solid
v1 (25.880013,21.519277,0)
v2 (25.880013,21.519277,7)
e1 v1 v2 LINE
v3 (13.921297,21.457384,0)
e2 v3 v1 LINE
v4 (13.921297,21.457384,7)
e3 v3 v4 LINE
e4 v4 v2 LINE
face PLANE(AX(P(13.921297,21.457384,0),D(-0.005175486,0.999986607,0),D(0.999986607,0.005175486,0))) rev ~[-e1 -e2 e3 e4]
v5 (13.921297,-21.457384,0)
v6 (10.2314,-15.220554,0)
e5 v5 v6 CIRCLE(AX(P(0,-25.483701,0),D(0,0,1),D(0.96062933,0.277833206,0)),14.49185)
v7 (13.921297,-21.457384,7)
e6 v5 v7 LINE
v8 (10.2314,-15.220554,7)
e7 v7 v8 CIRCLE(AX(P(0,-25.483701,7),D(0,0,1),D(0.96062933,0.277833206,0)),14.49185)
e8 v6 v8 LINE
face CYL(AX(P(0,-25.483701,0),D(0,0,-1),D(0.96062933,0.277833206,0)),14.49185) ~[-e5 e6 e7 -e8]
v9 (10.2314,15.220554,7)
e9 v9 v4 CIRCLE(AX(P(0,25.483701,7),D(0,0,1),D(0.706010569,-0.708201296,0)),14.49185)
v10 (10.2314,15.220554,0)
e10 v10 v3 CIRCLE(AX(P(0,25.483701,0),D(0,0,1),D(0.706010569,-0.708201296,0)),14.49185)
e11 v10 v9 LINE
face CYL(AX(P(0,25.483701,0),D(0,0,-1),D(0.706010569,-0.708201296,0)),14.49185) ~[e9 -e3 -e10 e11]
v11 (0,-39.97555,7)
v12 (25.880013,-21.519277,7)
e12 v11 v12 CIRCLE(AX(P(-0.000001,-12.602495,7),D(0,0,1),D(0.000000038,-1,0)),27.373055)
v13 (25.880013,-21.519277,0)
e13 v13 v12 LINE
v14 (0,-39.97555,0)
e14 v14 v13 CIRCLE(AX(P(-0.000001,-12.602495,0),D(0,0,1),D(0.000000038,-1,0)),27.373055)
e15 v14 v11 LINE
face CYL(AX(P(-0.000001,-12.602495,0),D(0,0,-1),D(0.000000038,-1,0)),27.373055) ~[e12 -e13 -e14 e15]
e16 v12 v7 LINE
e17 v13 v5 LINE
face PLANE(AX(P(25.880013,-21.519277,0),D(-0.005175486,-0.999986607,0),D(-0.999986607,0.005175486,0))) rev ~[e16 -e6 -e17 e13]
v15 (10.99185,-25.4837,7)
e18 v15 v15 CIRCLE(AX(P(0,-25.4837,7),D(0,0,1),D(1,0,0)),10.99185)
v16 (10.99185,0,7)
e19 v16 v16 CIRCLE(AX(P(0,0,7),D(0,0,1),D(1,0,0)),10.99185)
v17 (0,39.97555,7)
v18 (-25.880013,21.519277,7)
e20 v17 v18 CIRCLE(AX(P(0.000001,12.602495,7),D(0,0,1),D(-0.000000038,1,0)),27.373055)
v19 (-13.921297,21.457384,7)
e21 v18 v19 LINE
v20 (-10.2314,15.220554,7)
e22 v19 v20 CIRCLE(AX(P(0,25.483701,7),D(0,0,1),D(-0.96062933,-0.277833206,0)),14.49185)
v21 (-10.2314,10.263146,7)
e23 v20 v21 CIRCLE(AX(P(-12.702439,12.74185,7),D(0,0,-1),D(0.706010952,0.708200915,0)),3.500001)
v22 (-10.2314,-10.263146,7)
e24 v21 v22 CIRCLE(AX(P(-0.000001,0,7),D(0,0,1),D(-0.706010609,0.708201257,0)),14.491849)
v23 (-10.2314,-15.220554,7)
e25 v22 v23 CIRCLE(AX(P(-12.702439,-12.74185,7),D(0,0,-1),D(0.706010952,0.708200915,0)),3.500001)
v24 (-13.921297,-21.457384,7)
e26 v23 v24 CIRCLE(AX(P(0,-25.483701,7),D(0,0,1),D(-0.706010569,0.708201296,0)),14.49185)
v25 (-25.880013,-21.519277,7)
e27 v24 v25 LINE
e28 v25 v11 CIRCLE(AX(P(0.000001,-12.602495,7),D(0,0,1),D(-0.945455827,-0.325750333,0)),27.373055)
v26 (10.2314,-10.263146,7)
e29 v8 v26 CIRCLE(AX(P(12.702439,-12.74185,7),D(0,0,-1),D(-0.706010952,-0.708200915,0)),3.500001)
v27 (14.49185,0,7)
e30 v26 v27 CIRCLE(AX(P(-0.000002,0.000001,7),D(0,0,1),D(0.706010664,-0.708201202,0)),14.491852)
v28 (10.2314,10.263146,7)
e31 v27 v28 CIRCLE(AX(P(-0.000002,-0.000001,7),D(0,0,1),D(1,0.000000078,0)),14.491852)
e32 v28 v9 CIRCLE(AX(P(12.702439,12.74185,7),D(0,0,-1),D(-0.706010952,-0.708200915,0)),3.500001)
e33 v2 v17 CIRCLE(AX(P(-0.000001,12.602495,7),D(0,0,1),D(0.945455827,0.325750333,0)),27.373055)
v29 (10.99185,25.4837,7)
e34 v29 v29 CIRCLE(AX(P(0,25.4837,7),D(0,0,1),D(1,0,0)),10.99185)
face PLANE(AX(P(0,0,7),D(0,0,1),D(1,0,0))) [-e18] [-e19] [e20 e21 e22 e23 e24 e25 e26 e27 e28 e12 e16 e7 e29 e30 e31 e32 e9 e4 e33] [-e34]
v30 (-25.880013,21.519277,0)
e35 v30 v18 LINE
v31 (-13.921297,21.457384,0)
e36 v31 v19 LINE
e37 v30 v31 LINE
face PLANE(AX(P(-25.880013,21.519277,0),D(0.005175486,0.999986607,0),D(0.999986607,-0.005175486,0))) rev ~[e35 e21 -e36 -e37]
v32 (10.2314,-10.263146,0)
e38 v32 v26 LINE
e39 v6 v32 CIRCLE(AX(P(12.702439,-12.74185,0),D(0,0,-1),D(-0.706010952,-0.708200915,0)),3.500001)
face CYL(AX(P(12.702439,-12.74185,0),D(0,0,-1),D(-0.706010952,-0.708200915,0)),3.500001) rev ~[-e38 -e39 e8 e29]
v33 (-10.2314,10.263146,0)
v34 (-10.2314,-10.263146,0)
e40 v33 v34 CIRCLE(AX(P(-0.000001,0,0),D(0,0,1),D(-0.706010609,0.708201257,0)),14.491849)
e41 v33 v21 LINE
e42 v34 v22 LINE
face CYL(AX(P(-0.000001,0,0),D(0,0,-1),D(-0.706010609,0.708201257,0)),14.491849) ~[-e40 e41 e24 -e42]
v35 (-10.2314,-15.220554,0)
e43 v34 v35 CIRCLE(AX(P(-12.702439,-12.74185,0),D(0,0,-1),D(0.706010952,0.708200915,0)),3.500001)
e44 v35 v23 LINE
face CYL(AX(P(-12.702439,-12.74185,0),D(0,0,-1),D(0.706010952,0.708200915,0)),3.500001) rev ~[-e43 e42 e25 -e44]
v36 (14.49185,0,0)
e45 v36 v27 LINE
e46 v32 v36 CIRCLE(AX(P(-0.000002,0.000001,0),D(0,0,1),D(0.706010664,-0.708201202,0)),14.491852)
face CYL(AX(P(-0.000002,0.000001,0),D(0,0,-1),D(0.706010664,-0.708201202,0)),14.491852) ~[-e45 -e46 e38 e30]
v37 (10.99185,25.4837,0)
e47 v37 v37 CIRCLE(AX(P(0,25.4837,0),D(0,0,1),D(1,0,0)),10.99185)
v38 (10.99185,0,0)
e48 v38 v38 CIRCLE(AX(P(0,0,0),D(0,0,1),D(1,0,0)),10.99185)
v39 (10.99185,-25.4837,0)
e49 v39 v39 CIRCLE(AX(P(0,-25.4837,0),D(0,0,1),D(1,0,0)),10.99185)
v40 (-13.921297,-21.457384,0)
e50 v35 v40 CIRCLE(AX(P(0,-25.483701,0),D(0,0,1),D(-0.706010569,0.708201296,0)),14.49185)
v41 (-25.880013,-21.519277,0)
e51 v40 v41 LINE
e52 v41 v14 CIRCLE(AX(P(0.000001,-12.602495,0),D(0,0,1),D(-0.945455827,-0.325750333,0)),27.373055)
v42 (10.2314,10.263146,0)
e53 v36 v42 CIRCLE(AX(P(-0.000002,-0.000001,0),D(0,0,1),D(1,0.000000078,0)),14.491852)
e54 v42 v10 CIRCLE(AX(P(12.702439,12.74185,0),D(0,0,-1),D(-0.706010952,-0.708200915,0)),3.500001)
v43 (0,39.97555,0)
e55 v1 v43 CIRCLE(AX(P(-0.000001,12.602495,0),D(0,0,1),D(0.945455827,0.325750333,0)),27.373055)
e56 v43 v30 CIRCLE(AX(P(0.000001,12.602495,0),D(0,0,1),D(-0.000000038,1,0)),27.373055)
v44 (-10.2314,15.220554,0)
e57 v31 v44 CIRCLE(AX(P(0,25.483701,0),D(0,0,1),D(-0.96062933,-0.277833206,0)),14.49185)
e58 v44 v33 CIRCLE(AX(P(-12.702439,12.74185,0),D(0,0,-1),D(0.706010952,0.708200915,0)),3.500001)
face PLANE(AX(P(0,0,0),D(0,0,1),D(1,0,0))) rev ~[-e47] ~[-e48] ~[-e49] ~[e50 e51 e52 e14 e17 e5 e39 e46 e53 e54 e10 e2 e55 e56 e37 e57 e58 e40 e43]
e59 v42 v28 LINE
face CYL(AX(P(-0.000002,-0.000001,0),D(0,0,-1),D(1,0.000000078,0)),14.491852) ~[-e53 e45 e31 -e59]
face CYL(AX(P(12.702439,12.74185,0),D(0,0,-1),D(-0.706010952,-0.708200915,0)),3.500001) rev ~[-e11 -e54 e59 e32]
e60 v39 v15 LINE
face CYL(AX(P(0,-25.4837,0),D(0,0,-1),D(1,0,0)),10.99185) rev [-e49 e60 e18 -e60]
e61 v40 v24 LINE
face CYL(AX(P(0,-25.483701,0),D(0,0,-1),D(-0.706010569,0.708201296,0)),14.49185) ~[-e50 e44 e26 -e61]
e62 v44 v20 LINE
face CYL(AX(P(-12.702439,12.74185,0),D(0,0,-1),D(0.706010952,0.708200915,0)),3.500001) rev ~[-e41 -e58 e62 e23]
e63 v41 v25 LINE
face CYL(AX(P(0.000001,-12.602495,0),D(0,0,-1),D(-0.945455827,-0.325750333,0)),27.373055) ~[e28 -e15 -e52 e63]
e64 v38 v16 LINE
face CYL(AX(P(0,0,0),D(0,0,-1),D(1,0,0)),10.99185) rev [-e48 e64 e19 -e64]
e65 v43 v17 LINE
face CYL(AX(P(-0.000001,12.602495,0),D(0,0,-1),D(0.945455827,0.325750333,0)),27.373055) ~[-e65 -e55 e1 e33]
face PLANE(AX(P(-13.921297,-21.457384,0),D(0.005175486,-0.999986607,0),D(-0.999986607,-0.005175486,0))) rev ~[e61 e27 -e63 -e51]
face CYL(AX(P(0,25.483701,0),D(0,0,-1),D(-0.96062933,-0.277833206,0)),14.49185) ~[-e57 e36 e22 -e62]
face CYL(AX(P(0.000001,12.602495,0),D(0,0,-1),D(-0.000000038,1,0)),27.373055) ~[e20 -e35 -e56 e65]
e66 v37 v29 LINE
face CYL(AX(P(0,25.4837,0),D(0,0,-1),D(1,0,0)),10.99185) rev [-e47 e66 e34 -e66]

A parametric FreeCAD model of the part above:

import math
import FreeCAD as App
import Part
import Sketcher
from FreeCAD import Vector

doc = App.newDocument("Part")
body = doc.addObject("PartDesign::Body", "Body")

sketch1 = body.newObject("Sketcher::SketchObject", "Sketch")
sketch1.AttachmentSupport = (doc.getObject("XY_Plane"), [""])
sketch1.MapMode = "FlatFace"
sketch1.addGeometry(Part.ArcOfCircle(Part.Circle(Vector(0, 0, 0), Vector(0, 0, 1), 14.5), math.radians(-45), math.radians(0)), False)
sketch1.addGeometry(Part.ArcOfCircle(Part.Circle(Vector(0, 0, 0), Vector(0, 0, 1), 14.5), math.radians(0), math.radians(45)), False)
sketch1.addGeometry(Part.ArcOfCircle(Part.Circle(Vector(12.7, 12.7, 0), Vector(0, 0, 1), 3.5), math.radians(135), math.radians(225)), False)
sketch1.addGeometry(Part.ArcOfCircle(Part.Circle(Vector(0, 25.5, 0), Vector(0, 0, 1), 14.5), math.radians(-45), math.radians(-16)), False)
sketch1.addGeometry(Part.LineSegment(Vector(13.9, 21.5, 0), Vector(25.9, 21.5, 0)), False)
sketch1.addGeometry(Part.ArcOfCircle(Part.Circle(Vector(0, 12.6, 0), Vector(0, 0, 1), 27.4), math.radians(19), math.radians(90)), False)
sketch1.addGeometry(Part.ArcOfCircle(Part.Circle(Vector(0, 12.6, 0), Vector(0, 0, 1), 27.4), math.radians(90), math.radians(161)), False)
sketch1.addGeometry(Part.LineSegment(Vector(-25.9, 21.5, 0), Vector(-13.9, 21.5, 0)), False)
sketch1.addGeometry(Part.ArcOfCircle(Part.Circle(Vector(0, 25.5, 0), Vector(0, 0, 1), 14.5), math.radians(-164), math.radians(-135)), False)
sketch1.addGeometry(Part.ArcOfCircle(Part.Circle(Vector(-12.7, 12.7, 0), Vector(0, 0, 1), 3.5), math.radians(-45), math.radians(45)), False)
sketch1.addGeometry(Part.ArcOfCircle(Part.Circle(Vector(0, 0, 0), Vector(0, 0, 1), 14.5), math.radians(135), math.radians(225)), False)
sketch1.addGeometry(Part.ArcOfCircle(Part.Circle(Vector(-12.7, -12.7, 0), Vector(0, 0, 1), 3.5), math.radians(-45), math.radians(45)), False)
sketch1.addGeometry(Part.ArcOfCircle(Part.Circle(Vector(0, -25.5, 0), Vector(0, 0, 1), 14.5), math.radians(135), math.radians(164)), False)
sketch1.addGeometry(Part.LineSegment(Vector(-13.9, -21.5, 0), Vector(-25.9, -21.5, 0)), False)
sketch1.addGeometry(Part.ArcOfCircle(Part.Circle(Vector(0, -12.6, 0), Vector(0, 0, 1), 27.4), math.radians(-161), math.radians(-90)), False)
sketch1.addGeometry(Part.ArcOfCircle(Part.Circle(Vector(0, -12.6, 0), Vector(0, 0, 1), 27.4), math.radians(-90), math.radians(-19)), False)
sketch1.addGeometry(Part.LineSegment(Vector(25.9, -21.5, 0), Vector(13.9, -21.5, 0)), False)
sketch1.addGeometry(Part.ArcOfCircle(Part.Circle(Vector(0, -25.5, 0), Vector(0, 0, 1), 14.5), math.radians(16), math.radians(45)), False)
sketch1.addGeometry(Part.ArcOfCircle(Part.Circle(Vector(12.7, -12.7, 0), Vector(0, 0, 1), 3.5), math.radians(135), math.radians(225)), False)
sketch1.addGeometry(Part.Circle(Vector(0, -25.5, 0), Vector(0, 0, 1), 11), False)
sketch1.addGeometry(Part.Circle(Vector(0, 0, 0), Vector(0, 0, 1), 11), False)
sketch1.addGeometry(Part.Circle(Vector(0, 25.5, 0), Vector(0, 0, 1), 11), False)
sketch1.addConstraint(Sketcher.Constraint("Tangent", 0, 2, 1, 1))
sketch1.addConstraint(Sketcher.Constraint("Tangent", 1, 2, 2, 2))
sketch1.addConstraint(Sketcher.Constraint("Tangent", 2, 1, 3, 1))
sketch1.addConstraint(Sketcher.Constraint("Coincident", 3, 2, 4, 1))
sketch1.addConstraint(Sketcher.Constraint("Coincident", 4, 2, 5, 1))
sketch1.addConstraint(Sketcher.Constraint("Tangent", 5, 2, 6, 1))
sketch1.addConstraint(Sketcher.Constraint("Coincident", 6, 2, 7, 1))
sketch1.addConstraint(Sketcher.Constraint("Coincident", 7, 2, 8, 1))
sketch1.addConstraint(Sketcher.Constraint("Tangent", 8, 2, 9, 2))
sketch1.addConstraint(Sketcher.Constraint("Tangent", 9, 1, 10, 1))
sketch1.addConstraint(Sketcher.Constraint("Tangent", 10, 2, 11, 2))
sketch1.addConstraint(Sketcher.Constraint("Tangent", 11, 1, 12, 1))
sketch1.addConstraint(Sketcher.Constraint("Coincident", 12, 2, 13, 1))
sketch1.addConstraint(Sketcher.Constraint("Coincident", 13, 2, 14, 1))
sketch1.addConstraint(Sketcher.Constraint("Tangent", 14, 2, 15, 1))
sketch1.addConstraint(Sketcher.Constraint("Coincident", 15, 2, 16, 1))
sketch1.addConstraint(Sketcher.Constraint("Coincident", 16, 2, 17, 1))
sketch1.addConstraint(Sketcher.Constraint("Tangent", 17, 2, 18, 2))
sketch1.addConstraint(Sketcher.Constraint("Tangent", 18, 1, 0, 1))
sketch1.addConstraint(Sketcher.Constraint("Coincident", 0, 3, -1, 1))
sketch1.addConstraint(Sketcher.Constraint("Coincident", 10, 3, -1, 1))
sketch1.addConstraint(Sketcher.Constraint("Coincident", 20, 3, -1, 1))
sketch1.addConstraint(Sketcher.Constraint("Coincident", 8, 3, 3, 3))
sketch1.addConstraint(Sketcher.Constraint("Coincident", 17, 3, 12, 3))
sketch1.addConstraint(Sketcher.Constraint("Coincident", 19, 3, 12, 3))
sketch1.addConstraint(Sketcher.Constraint("Coincident", 21, 3, 3, 3))
sketch1.addConstraint(Sketcher.Constraint("Equal", 0, 1))
sketch1.addConstraint(Sketcher.Constraint("Equal", 1, 3))
sketch1.addConstraint(Sketcher.Constraint("Equal", 5, 6))
sketch1.addConstraint(Sketcher.Constraint("Equal", 3, 8))
sketch1.addConstraint(Sketcher.Constraint("Equal", 2, 9))
sketch1.addConstraint(Sketcher.Constraint("Equal", 8, 10))
sketch1.addConstraint(Sketcher.Constraint("Equal", 9, 11))
sketch1.addConstraint(Sketcher.Constraint("Equal", 10, 12))
sketch1.addConstraint(Sketcher.Constraint("Equal", 6, 14))
sketch1.addConstraint(Sketcher.Constraint("Equal", 14, 15))
sketch1.addConstraint(Sketcher.Constraint("Equal", 12, 17))
sketch1.addConstraint(Sketcher.Constraint("Equal", 11, 18))
sketch1.addConstraint(Sketcher.Constraint("Equal", 19, 20))
sketch1.addConstraint(Sketcher.Constraint("Equal", 20, 21))
sketch1.addConstraint(Sketcher.Constraint("Symmetric", 3, 3, 12, 3, -1, 1))
sketch1.addConstraint(Sketcher.Constraint("Symmetric", 5, 3, 14, 3, -1, 1))
sketch1.addConstraint(Sketcher.Constraint("Symmetric", 4, 2, 6, 2, -2))
sketch1.addConstraint(Sketcher.Constraint("Symmetric", 3, 2, 7, 2, -2))
sketch1.addConstraint(Sketcher.Constraint("PointOnObject", 0, 2, -1))
sketch1.addConstraint(Sketcher.Constraint("PointOnObject", 5, 2, -2))
sketch1.addConstraint(Sketcher.Constraint("PointOnObject", 14, 2, -2))
sketch1.addConstraint(Sketcher.Constraint("Parallel", 4, 13))
sketch1.addConstraint(Sketcher.Constraint("Parallel", 7, 16))
sketch1.addConstraint(Sketcher.Constraint("Horizontal", 13, 2, 15, 2))
sketch1.addConstraint(Sketcher.Constraint("Vertical", 7, 2, 12, 2))
sketch1.addConstraint(Sketcher.Constraint("Radius", 2, 3.500001))
sketch1.addConstraint(Sketcher.Constraint("Diameter", 19, 21.9837))
sketch1.addConstraint(Sketcher.Constraint("Radius", 3, 14.49185))
sketch1.addConstraint(Sketcher.Constraint("Radius", 5, 27.373055))
sketch1.addConstraint(Sketcher.Constraint("DistanceY", -1, 1, 3, 3, 25.483701))
sketch1.addConstraint(Sketcher.Constraint("DistanceY", -1, 1, 5, 2, 39.97555))
sketch1.addConstraint(Sketcher.Constraint("DistanceY", 2, 1, 3, 2, 6.23683))
sketch1.addConstraint(Sketcher.Constraint("DistanceY", 1, 2, 4, 2, 11.256131))
pad1 = body.newObject("PartDesign::Pad", "Pad")
pad1.Profile = sketch1
pad1.Length = 7

doc.recompute()
